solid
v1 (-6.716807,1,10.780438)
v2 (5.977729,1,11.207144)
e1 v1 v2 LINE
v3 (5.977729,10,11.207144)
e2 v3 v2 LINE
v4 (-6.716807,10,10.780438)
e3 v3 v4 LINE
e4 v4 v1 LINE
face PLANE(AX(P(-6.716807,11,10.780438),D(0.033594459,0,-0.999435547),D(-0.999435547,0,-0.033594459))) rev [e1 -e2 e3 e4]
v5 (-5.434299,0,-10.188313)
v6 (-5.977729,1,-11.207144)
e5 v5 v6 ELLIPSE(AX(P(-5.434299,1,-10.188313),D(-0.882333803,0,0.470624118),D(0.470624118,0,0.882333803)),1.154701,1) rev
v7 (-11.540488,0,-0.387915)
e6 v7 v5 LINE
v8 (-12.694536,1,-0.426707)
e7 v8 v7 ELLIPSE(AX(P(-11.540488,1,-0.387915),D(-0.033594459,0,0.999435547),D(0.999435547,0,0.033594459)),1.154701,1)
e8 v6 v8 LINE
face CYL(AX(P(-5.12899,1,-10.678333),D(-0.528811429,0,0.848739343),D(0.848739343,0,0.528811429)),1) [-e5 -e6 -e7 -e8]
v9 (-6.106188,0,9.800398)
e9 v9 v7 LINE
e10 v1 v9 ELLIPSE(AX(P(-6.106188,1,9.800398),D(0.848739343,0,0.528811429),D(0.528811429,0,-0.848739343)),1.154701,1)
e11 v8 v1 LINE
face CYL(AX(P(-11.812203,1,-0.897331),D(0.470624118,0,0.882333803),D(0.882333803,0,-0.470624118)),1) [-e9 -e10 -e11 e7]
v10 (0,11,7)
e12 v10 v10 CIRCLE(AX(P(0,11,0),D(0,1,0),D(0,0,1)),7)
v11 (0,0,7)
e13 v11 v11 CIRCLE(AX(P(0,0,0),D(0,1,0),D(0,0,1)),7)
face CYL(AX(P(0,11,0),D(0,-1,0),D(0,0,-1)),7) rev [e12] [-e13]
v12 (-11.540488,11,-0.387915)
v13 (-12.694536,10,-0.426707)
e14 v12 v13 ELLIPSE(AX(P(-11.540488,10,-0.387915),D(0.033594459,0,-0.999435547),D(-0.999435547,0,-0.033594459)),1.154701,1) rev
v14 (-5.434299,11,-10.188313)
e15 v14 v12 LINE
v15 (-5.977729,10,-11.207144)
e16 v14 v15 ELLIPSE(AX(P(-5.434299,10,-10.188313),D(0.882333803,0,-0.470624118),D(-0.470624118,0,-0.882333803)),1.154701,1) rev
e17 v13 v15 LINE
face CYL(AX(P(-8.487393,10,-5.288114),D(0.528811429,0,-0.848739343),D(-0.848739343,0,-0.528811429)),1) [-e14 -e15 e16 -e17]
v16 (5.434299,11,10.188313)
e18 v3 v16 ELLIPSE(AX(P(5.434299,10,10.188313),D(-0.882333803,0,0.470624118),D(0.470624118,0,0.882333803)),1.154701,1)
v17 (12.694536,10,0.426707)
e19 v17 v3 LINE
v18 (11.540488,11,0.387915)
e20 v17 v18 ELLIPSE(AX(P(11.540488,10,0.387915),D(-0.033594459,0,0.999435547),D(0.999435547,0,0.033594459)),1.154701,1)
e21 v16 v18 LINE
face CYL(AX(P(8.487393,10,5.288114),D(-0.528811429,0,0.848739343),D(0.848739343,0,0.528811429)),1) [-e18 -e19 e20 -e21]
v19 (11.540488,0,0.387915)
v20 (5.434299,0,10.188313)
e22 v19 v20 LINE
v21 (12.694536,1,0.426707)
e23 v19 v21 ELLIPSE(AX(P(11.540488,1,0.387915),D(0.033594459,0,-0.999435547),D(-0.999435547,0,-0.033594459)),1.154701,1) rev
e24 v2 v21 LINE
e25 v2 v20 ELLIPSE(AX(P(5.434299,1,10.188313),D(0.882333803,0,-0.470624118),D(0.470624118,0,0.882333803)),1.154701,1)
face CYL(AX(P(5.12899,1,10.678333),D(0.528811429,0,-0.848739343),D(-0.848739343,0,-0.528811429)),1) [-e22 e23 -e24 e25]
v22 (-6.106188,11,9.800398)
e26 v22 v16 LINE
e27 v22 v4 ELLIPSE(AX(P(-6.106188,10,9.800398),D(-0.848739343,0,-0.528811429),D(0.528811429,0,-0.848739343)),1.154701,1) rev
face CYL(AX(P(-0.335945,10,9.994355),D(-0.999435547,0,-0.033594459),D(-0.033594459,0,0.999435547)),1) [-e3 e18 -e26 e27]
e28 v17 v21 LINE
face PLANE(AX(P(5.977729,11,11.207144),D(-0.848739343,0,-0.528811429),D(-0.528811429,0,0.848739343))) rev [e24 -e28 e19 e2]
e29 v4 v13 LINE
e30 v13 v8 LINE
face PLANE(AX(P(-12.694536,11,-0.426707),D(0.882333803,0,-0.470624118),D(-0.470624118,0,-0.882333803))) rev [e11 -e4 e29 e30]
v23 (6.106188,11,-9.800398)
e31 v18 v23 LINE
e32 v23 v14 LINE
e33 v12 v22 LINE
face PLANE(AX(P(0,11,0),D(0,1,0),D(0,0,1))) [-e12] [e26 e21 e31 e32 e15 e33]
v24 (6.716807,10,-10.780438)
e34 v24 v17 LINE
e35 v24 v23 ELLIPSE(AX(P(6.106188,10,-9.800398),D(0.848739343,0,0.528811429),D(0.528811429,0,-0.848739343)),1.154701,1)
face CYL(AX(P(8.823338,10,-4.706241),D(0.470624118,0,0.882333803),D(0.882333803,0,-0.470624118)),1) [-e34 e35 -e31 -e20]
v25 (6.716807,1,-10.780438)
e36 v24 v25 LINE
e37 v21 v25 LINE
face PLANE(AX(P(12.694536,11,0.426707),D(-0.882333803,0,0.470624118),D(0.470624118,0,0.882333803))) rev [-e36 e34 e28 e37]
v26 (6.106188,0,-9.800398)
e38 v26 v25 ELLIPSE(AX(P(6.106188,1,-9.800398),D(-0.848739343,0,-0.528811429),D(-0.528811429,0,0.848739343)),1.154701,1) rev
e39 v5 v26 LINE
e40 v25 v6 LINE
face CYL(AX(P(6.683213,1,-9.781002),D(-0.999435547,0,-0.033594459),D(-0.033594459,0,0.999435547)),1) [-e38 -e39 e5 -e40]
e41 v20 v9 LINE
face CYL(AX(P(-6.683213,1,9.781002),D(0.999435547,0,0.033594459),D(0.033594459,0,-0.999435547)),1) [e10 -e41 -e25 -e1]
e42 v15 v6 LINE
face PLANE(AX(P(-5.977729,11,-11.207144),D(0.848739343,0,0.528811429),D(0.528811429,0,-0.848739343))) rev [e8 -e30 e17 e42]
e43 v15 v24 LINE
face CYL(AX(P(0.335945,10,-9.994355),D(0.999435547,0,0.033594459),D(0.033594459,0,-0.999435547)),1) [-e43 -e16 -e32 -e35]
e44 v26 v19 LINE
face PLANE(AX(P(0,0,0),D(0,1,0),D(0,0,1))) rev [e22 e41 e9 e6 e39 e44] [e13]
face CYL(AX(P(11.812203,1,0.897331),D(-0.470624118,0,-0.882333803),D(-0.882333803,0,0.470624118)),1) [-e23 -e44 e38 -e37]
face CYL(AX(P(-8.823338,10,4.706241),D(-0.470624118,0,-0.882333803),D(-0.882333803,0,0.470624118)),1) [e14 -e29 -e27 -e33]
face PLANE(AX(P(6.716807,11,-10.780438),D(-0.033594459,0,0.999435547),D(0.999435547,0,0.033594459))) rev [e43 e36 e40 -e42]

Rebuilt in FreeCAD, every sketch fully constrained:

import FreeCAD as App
import Part
import Sketcher

V = App.Vector


def edges_at(feature, points):
    """Names of the edges that pass closest to the given points."""
    edges = feature.Shape.Edges
    near = lambda p: min(range(len(edges)), key=lambda i: edges[i].distToShape(Part.Vertex(*p))[0])
    return sorted({f"Edge{near(p) + 1}" for p in points})


def add_polygon(sketch, points):
    """Adds a closed chain of lines whose ends are joined by coincident constraints."""
    first, n = sketch.GeometryCount, len(points)
    for a, b in zip(points, points[1:] + points[:1]):
        sketch.addGeometry(Part.LineSegment(App.Vector(*a, 0), App.Vector(*b, 0)), False)
    for i in range(n):
        sketch.addConstraint(Sketcher.Constraint("Coincident", first + i, 2, first + (i + 1) % n, 1))

doc = App.newDocument("Part")
body = doc.addObject("PartDesign::Body", "Body")

# Sketch on XZ plane
sketch1 = body.newObject("Sketcher::SketchObject", "Sketch")
sketch1.AttachmentSupport = (doc.getObject("XZ_Plane"), [""])
sketch1.MapMode = "FlatFace"
add_polygon(sketch1, [(-13, 0), (-7, 11), (6, 11), (13, 0), (7, -11), (-6, -11)])  # lines 0-5
sketch1.addGeometry(Part.Circle(V(0, 0, 0), V(0, 0, 1), 7), False)  # 6
sketch1.addConstraint(Sketcher.Constraint("Coincident", 6, 3, -1, 1))
sketch1.addConstraint(Sketcher.Constraint("Symmetric", 0, 2, 3, 2, -1, 1))
sketch1.addConstraint(Sketcher.Constraint("Symmetric", 1, 2, 4, 2, -1, 1))
sketch1.addConstraint(Sketcher.Constraint("Symmetric", 2, 2, 5, 2, -1, 1))
sketch1.addConstraint(Sketcher.Constraint("Equal", 0, 1))
sketch1.addConstraint(Sketcher.Constraint("Equal", 1, 2))
sketch1.addConstraint(Sketcher.Constraint("Diameter", 6, 14.0))
sketch1.addConstraint(Sketcher.Constraint("DistanceX", -1, 1, 1, 2, 5.977729))
sketch1.addConstraint(Sketcher.Constraint("DistanceY", 2, 2, 0, 2, 10.353731))
sketch1.addConstraint(Sketcher.Constraint("DistanceX", 3, 2, 2, 2, 5.977729))
sketch1.addConstraint(Sketcher.Constraint("DistanceX", 1, 2, 3, 2, 0.739078))
pad1 = body.newObject("PartDesign::Pad", "Pad")
pad1.Profile = sketch1
pad1.Length = 11
pad1.Reversed = True
doc.recompute()

fillet = body.newObject("PartDesign::Fillet", "Fillet")
fillet.Base = (pad1, edges_at(pad1, [
    (-0.37, 11, 10.994),
    (9.336, 11, 5.817),
    (9.706, 11, -5.177),
    (0.37, 11, -10.994),
    (-9.336, 11, -5.817),
    (0.37, 0, -10.994),
    (9.706, 0, -5.177),
    (9.336, 0, 5.817),
    (-9.706, 11, 5.177),
    (-0.37, 0, 10.994),
    (-9.706, 0, 5.177),
    (-9.336, 0, -5.817),
]))
fillet.Radius = 1

doc.recompute()
